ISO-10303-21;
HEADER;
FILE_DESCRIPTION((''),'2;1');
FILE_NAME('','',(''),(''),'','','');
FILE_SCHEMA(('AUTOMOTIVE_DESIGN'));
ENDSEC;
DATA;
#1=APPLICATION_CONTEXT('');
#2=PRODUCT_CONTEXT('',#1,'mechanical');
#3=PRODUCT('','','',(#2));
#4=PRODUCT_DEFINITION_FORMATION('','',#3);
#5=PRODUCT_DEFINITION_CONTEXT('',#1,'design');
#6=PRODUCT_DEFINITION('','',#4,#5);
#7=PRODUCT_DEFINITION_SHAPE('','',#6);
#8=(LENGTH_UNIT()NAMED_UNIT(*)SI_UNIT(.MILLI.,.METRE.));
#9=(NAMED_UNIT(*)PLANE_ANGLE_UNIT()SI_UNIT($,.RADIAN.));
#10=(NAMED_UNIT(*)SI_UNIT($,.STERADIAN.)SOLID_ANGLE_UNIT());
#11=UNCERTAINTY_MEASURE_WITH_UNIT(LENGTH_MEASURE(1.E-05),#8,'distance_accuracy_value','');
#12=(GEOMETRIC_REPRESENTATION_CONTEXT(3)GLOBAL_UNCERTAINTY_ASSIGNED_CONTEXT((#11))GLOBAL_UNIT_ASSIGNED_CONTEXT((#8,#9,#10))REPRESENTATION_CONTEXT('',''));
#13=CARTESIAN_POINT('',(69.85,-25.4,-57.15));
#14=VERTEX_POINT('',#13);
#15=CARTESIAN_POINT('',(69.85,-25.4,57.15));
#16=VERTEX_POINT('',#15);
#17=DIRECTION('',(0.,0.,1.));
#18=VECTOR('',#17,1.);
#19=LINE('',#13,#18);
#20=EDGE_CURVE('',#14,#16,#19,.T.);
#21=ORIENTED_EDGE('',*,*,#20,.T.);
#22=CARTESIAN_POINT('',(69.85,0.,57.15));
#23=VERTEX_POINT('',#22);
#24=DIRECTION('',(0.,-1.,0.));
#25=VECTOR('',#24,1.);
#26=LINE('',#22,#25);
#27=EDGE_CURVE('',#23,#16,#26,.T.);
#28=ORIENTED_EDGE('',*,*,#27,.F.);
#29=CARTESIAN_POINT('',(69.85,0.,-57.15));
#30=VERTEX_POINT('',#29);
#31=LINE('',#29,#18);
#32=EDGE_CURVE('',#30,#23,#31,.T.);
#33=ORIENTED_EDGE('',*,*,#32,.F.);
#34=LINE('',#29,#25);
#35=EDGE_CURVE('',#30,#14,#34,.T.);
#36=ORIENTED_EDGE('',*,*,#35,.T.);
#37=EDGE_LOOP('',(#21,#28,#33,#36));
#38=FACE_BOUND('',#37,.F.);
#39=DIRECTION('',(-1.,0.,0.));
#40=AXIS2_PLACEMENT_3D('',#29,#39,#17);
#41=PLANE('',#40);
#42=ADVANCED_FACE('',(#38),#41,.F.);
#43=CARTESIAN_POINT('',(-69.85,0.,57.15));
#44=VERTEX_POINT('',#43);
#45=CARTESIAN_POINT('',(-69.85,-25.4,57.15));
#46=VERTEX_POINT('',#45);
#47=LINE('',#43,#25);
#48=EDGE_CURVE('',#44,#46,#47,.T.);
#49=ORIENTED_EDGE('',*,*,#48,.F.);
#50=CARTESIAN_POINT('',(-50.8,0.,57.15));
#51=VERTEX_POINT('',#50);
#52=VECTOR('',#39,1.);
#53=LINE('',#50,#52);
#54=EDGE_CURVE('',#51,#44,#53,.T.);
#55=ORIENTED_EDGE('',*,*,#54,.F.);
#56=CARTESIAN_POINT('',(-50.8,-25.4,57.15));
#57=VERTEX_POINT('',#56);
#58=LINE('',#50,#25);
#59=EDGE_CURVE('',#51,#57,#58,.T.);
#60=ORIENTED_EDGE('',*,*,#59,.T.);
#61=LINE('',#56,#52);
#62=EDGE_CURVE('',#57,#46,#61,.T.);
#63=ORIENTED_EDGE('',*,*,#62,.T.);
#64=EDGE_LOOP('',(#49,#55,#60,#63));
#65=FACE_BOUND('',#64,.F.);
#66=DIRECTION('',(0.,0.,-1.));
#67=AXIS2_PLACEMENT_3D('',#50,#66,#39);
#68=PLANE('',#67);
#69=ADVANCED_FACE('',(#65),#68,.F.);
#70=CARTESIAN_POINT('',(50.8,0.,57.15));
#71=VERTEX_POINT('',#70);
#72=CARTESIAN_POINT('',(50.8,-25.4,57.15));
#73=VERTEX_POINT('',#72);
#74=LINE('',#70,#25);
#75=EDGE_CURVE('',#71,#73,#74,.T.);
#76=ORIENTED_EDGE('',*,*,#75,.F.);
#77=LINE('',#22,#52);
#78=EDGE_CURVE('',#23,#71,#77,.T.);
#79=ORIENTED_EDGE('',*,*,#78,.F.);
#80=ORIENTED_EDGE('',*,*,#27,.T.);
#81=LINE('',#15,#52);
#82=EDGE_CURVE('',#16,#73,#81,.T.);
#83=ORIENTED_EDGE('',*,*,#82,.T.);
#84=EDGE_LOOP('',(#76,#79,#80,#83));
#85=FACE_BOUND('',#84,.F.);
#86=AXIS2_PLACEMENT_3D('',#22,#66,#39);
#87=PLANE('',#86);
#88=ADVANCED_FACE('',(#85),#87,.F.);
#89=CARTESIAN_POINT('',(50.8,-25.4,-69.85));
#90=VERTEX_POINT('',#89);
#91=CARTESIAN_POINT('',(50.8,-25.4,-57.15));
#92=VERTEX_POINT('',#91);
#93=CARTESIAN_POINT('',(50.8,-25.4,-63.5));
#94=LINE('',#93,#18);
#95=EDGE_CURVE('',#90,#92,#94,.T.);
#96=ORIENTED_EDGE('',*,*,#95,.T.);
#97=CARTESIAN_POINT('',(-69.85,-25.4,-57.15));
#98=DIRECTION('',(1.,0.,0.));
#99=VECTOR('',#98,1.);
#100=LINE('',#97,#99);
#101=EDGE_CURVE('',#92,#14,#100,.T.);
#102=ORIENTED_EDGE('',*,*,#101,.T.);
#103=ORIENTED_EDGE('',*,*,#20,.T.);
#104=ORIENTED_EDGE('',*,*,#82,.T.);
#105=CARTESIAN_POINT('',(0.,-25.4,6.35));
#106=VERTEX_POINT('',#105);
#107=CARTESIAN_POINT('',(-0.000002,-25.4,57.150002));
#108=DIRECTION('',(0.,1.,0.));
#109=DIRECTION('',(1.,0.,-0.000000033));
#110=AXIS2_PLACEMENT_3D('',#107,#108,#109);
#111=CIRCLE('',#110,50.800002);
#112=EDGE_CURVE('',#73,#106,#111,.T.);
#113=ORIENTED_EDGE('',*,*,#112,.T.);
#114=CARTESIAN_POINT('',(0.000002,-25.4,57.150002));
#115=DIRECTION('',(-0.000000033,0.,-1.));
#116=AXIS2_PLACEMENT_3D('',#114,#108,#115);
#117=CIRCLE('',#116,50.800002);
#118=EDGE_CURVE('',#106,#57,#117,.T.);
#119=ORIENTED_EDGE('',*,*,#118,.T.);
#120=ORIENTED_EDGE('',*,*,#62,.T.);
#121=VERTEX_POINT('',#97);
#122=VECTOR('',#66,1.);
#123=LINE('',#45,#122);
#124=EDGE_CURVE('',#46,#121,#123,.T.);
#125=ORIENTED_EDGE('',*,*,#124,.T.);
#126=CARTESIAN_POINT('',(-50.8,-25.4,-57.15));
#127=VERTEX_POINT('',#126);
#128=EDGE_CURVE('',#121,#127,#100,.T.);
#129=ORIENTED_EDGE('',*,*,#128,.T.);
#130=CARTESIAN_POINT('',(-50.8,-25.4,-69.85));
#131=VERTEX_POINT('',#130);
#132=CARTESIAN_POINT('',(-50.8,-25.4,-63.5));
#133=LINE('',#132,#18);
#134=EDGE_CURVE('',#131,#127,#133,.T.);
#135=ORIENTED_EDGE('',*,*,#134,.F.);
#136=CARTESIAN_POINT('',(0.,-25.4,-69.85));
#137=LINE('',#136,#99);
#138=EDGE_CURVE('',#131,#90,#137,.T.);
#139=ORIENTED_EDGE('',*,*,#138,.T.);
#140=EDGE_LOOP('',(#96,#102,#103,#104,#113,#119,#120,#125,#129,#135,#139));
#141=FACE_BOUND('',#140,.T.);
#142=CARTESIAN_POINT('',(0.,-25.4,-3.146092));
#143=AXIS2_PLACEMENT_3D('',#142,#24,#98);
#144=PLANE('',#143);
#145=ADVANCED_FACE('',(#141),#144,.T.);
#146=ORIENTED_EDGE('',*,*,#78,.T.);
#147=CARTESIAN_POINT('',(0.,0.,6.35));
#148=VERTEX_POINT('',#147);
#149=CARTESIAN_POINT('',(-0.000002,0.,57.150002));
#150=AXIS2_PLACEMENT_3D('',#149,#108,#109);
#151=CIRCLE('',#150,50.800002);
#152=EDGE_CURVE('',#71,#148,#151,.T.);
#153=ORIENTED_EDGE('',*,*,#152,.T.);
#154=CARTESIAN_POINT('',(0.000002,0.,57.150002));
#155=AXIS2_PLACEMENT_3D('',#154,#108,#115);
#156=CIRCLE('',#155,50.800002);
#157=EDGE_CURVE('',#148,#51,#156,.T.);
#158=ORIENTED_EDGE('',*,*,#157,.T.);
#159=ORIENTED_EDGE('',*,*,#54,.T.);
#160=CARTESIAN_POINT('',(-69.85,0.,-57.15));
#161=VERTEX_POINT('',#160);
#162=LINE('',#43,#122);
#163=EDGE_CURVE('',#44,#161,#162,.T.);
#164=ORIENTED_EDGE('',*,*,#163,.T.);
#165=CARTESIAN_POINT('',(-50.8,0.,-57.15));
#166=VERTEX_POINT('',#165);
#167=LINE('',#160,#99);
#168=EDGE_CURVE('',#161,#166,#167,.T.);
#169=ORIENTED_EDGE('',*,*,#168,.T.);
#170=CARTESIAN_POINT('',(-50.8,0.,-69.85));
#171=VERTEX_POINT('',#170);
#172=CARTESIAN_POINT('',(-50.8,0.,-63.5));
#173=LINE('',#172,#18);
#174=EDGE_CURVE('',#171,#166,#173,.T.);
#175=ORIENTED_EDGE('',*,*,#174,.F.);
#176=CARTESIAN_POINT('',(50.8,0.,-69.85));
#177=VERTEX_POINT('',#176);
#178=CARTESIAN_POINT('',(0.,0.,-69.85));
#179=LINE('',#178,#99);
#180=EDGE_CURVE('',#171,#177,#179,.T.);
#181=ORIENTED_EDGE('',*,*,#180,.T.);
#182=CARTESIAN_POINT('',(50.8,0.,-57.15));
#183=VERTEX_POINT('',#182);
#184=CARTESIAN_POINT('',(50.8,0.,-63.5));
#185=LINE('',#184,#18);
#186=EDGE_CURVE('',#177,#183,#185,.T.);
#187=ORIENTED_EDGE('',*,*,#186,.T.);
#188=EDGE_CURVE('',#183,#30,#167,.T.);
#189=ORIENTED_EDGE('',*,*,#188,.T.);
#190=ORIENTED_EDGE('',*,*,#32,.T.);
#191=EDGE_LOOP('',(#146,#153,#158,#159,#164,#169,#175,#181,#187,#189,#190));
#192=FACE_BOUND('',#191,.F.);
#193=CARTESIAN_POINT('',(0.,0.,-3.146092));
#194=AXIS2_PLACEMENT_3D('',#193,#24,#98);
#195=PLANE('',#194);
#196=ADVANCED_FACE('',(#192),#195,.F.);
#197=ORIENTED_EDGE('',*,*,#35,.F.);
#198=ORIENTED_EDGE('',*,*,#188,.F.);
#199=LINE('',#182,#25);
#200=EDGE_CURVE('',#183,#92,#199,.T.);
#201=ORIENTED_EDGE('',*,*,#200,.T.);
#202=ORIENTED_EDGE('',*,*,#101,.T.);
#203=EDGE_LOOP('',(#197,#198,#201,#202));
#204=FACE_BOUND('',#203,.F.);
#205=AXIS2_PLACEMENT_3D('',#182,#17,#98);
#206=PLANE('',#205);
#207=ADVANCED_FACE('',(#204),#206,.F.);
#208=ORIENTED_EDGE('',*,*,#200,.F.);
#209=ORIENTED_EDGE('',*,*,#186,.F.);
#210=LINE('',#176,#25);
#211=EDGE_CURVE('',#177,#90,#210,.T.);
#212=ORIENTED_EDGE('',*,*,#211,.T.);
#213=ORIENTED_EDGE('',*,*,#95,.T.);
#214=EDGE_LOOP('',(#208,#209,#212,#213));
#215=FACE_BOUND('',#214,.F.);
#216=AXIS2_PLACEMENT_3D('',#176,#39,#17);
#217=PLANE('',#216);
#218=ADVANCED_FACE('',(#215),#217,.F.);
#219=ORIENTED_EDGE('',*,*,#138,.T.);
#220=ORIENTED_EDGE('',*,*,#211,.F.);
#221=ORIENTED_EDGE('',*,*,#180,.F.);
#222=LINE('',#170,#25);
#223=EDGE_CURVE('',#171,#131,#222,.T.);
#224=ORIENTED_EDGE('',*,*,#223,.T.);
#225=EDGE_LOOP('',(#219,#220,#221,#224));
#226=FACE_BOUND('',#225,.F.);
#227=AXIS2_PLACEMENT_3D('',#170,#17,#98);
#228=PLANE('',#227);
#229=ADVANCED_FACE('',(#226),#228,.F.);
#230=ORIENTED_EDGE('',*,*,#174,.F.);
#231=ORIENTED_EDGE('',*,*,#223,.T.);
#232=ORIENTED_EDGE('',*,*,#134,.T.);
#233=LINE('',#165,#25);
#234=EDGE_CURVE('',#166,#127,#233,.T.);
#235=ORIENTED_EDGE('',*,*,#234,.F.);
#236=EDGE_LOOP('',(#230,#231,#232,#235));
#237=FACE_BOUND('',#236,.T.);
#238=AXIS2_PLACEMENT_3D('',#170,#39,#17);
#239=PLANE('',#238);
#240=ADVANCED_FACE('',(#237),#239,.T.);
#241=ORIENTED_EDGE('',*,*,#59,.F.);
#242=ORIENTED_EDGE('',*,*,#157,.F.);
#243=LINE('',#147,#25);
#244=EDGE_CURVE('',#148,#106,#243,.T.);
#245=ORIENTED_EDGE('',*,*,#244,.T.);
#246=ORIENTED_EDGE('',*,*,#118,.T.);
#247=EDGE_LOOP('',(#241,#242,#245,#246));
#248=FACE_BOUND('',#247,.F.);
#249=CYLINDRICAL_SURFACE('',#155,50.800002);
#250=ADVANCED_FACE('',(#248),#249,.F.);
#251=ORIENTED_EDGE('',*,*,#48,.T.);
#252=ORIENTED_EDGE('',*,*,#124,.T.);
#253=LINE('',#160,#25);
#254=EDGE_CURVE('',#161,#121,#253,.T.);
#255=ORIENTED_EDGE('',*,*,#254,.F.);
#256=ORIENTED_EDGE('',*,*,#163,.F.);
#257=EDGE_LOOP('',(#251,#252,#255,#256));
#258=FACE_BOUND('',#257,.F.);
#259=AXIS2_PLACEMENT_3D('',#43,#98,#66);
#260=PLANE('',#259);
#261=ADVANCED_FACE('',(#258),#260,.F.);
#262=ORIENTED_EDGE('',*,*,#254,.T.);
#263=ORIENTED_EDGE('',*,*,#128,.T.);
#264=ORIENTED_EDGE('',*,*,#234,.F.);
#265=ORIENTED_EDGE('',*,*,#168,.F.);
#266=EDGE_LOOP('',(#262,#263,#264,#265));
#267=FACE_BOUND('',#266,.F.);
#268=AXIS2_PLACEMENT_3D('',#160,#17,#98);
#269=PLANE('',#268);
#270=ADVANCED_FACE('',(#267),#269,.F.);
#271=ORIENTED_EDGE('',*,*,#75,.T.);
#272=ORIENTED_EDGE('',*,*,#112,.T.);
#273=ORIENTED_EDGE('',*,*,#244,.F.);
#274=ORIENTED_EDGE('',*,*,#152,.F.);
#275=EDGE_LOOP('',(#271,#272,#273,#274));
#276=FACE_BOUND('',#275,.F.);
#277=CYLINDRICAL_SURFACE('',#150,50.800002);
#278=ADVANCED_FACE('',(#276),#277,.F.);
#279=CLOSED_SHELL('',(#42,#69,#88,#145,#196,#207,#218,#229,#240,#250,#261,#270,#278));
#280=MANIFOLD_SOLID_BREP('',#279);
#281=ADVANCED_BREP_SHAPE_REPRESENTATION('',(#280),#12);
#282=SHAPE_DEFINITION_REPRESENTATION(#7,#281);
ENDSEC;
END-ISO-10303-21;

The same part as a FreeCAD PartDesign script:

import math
import FreeCAD as App
import Part
import Sketcher
from FreeCAD import Vector
Q = App.Units.Quantity

doc = App.newDocument("Part")
body = doc.addObject("PartDesign::Body", "Body")

# Sketch on XZ plane
sketch1 = body.newObject("Sketcher::SketchObject", "Sketch")
sketch1.AttachmentSupport = (doc.getObject("XZ_Plane"), [""])
sketch1.MapMode = "FlatFace"
sketch1.addGeometry([
    Part.LineSegment(Vector(70, -57, 0), Vector(70, 57, 0)),  # 0
    Part.LineSegment(Vector(70, 57, 0), Vector(51, 57, 0)),  # 1
    Part.ArcOfCircle(Part.Circle(Vector(0, 57, 0), Vector(0, 0, 1), 51), math.radians(-90), math.radians(0)),  # 2
    Part.ArcOfCircle(Part.Circle(Vector(0, 57, 0), Vector(0, 0, 1), 51), math.radians(-180), math.radians(-90)),  # 3
    Part.LineSegment(Vector(-51, 57, 0), Vector(-70, 57, 0)),  # 4
    Part.LineSegment(Vector(-70, 57, 0), Vector(-70, -57, 0)),  # 5
    Part.LineSegment(Vector(-70, -57, 0), Vector(-51, -57, 0)),  # 6
    Part.LineSegment(Vector(-51, -57, 0), Vector(-51, -70, 0)),  # 7
    Part.LineSegment(Vector(-51, -70, 0), Vector(51, -70, 0)),  # 8
    Part.LineSegment(Vector(51, -70, 0), Vector(51, -57, 0)),  # 9
    Part.LineSegment(Vector(51, -57, 0), Vector(70, -57, 0)),  # 10
], False)
sketch1.addConstraint([
    Sketcher.Constraint("Coincident", 0, 2, 1, 1),
    Sketcher.Constraint("Coincident", 1, 2, 2, 2),
    Sketcher.Constraint("Tangent", 2, 1, 3, 2),
    Sketcher.Constraint("Coincident", 3, 1, 4, 1),
    Sketcher.Constraint("Coincident", 4, 2, 5, 1),
    Sketcher.Constraint("Coincident", 5, 2, 6, 1),
    Sketcher.Constraint("Coincident", 6, 2, 7, 1),
    Sketcher.Constraint("Coincident", 7, 2, 8, 1),
    Sketcher.Constraint("Coincident", 8, 2, 9, 1),
    Sketcher.Constraint("Coincident", 9, 2, 10, 1),
    Sketcher.Constraint("Coincident", 10, 2, 0, 1),
    Sketcher.Constraint("Vertical", 0),
    Sketcher.Constraint("Horizontal", 1),
    Sketcher.Constraint("Horizontal", 4),
    Sketcher.Constraint("Vertical", 5),
    Sketcher.Constraint("Horizontal", 6),
    Sketcher.Constraint("Vertical", 7),
    Sketcher.Constraint("Horizontal", 8),
    Sketcher.Constraint("Vertical", 9),
    Sketcher.Constraint("Horizontal", 10),
    Sketcher.Constraint("Equal", 2, 3),
    Sketcher.Constraint("Symmetric", 0, 2, 5, 2, -1, 1),
    Sketcher.Constraint("Symmetric", 3, 1, 9, 2, -1, 1),
    Sketcher.Constraint("Symmetric", 1, 2, 3, 1, -2),
    Sketcher.Constraint("PointOnObject", 2, 1, -2),
    Sketcher.Constraint("Horizontal", 3, 3, 0, 2),
    Sketcher.Constraint("Vertical", 3, 1, 6, 2),
    Sketcher.Constraint("Radius", 2, Q("2.0000001 in")),
    Sketcher.Constraint("DistanceY", 0, 1, 0, 2, Q("4.5 in")),
    Sketcher.Constraint("DistanceY", 7, 2, 7, 1, Q("0.5 in")),
    Sketcher.Constraint("DistanceX", 1, 2, 1, 1, Q("0.75 in")),
])
pad1 = body.newObject("PartDesign::Pad", "Pad")
pad1.Profile = sketch1
pad1.Length = Q("1 in")

doc.recompute()
